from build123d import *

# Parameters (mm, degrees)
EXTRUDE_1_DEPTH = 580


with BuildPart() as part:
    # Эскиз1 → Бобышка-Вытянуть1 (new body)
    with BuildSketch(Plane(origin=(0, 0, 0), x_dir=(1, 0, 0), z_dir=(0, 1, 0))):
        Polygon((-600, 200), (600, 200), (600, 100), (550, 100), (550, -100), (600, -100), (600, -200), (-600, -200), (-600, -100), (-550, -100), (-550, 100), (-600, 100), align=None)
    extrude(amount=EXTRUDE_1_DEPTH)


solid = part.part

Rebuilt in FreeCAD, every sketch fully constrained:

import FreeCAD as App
import Part
import Sketcher

V = App.Vector


def add_polygon(sketch, points):
    """Adds a closed chain of lines whose ends are joined by coincident constraints."""
    first, n = sketch.GeometryCount, len(points)
    for a, b in zip(points, points[1:] + points[:1]):
        sketch.addGeometry(Part.LineSegment(App.Vector(*a, 0), App.Vector(*b, 0)), False)
    for i in range(n):
        sketch.addConstraint(Sketcher.Constraint("Coincident", first + i, 2, first + (i + 1) % n, 1))

doc = App.newDocument("Part")
body = doc.addObject("PartDesign::Body", "Body")

# Sketch on XZ plane
sketch1 = body.newObject("Sketcher::SketchObject", "Sketch")
sketch1.AttachmentSupport = (doc.getObject("XZ_Plane"), [""])
sketch1.MapMode = "FlatFace"
add_polygon(sketch1, [(600, -200), (-600, -200), (-600, -100), (-550, -100), (-550, 100), (-600, 100), (-600, 200), (600, 200), (600, 100), (550, 100), (550, -100), (600, -100)])  # lines 0-11
sketch1.addConstraint([
    Sketcher.Constraint("Horizontal", 0),
    Sketcher.Constraint("Vertical", 1),
    Sketcher.Constraint("Horizontal", 2),
    Sketcher.Constraint("Vertical", 3),
    Sketcher.Constraint("Horizontal", 4),
    Sketcher.Constraint("Vertical", 5),
    Sketcher.Constraint("Horizontal", 6),
    Sketcher.Constraint("Vertical", 7),
    Sketcher.Constraint("Horizontal", 8),
    Sketcher.Constraint("Vertical", 9),
    Sketcher.Constraint("Horizontal", 10),
    Sketcher.Constraint("Vertical", 11),
    Sketcher.Constraint("Symmetric", 0, 2, 6, 2, -1, 1),
    Sketcher.Constraint("Symmetric", 2, 2, 8, 2, -1, 1),
    Sketcher.Constraint("Symmetric", 4, 2, 10, 2, -1, 1),
    Sketcher.Constraint("Symmetric", 4, 2, 7, 2, -2),
    Sketcher.Constraint("DistanceX", 0, 2, 0, 1, 1200.0),
    Sketcher.Constraint("DistanceX", 2, 1, 2, 2, 50.0),
    Sketcher.Constraint("DistanceY", 1, 1, 1, 2, 100.0),
    Sketcher.Constraint("DistanceY", 3, 1, 3, 2, 200.0),
])
pad1 = body.newObject("PartDesign::Pad", "Pad")
pad1.Profile = sketch1
pad1.Length = 580
pad1.Reversed = True

doc.recompute()
